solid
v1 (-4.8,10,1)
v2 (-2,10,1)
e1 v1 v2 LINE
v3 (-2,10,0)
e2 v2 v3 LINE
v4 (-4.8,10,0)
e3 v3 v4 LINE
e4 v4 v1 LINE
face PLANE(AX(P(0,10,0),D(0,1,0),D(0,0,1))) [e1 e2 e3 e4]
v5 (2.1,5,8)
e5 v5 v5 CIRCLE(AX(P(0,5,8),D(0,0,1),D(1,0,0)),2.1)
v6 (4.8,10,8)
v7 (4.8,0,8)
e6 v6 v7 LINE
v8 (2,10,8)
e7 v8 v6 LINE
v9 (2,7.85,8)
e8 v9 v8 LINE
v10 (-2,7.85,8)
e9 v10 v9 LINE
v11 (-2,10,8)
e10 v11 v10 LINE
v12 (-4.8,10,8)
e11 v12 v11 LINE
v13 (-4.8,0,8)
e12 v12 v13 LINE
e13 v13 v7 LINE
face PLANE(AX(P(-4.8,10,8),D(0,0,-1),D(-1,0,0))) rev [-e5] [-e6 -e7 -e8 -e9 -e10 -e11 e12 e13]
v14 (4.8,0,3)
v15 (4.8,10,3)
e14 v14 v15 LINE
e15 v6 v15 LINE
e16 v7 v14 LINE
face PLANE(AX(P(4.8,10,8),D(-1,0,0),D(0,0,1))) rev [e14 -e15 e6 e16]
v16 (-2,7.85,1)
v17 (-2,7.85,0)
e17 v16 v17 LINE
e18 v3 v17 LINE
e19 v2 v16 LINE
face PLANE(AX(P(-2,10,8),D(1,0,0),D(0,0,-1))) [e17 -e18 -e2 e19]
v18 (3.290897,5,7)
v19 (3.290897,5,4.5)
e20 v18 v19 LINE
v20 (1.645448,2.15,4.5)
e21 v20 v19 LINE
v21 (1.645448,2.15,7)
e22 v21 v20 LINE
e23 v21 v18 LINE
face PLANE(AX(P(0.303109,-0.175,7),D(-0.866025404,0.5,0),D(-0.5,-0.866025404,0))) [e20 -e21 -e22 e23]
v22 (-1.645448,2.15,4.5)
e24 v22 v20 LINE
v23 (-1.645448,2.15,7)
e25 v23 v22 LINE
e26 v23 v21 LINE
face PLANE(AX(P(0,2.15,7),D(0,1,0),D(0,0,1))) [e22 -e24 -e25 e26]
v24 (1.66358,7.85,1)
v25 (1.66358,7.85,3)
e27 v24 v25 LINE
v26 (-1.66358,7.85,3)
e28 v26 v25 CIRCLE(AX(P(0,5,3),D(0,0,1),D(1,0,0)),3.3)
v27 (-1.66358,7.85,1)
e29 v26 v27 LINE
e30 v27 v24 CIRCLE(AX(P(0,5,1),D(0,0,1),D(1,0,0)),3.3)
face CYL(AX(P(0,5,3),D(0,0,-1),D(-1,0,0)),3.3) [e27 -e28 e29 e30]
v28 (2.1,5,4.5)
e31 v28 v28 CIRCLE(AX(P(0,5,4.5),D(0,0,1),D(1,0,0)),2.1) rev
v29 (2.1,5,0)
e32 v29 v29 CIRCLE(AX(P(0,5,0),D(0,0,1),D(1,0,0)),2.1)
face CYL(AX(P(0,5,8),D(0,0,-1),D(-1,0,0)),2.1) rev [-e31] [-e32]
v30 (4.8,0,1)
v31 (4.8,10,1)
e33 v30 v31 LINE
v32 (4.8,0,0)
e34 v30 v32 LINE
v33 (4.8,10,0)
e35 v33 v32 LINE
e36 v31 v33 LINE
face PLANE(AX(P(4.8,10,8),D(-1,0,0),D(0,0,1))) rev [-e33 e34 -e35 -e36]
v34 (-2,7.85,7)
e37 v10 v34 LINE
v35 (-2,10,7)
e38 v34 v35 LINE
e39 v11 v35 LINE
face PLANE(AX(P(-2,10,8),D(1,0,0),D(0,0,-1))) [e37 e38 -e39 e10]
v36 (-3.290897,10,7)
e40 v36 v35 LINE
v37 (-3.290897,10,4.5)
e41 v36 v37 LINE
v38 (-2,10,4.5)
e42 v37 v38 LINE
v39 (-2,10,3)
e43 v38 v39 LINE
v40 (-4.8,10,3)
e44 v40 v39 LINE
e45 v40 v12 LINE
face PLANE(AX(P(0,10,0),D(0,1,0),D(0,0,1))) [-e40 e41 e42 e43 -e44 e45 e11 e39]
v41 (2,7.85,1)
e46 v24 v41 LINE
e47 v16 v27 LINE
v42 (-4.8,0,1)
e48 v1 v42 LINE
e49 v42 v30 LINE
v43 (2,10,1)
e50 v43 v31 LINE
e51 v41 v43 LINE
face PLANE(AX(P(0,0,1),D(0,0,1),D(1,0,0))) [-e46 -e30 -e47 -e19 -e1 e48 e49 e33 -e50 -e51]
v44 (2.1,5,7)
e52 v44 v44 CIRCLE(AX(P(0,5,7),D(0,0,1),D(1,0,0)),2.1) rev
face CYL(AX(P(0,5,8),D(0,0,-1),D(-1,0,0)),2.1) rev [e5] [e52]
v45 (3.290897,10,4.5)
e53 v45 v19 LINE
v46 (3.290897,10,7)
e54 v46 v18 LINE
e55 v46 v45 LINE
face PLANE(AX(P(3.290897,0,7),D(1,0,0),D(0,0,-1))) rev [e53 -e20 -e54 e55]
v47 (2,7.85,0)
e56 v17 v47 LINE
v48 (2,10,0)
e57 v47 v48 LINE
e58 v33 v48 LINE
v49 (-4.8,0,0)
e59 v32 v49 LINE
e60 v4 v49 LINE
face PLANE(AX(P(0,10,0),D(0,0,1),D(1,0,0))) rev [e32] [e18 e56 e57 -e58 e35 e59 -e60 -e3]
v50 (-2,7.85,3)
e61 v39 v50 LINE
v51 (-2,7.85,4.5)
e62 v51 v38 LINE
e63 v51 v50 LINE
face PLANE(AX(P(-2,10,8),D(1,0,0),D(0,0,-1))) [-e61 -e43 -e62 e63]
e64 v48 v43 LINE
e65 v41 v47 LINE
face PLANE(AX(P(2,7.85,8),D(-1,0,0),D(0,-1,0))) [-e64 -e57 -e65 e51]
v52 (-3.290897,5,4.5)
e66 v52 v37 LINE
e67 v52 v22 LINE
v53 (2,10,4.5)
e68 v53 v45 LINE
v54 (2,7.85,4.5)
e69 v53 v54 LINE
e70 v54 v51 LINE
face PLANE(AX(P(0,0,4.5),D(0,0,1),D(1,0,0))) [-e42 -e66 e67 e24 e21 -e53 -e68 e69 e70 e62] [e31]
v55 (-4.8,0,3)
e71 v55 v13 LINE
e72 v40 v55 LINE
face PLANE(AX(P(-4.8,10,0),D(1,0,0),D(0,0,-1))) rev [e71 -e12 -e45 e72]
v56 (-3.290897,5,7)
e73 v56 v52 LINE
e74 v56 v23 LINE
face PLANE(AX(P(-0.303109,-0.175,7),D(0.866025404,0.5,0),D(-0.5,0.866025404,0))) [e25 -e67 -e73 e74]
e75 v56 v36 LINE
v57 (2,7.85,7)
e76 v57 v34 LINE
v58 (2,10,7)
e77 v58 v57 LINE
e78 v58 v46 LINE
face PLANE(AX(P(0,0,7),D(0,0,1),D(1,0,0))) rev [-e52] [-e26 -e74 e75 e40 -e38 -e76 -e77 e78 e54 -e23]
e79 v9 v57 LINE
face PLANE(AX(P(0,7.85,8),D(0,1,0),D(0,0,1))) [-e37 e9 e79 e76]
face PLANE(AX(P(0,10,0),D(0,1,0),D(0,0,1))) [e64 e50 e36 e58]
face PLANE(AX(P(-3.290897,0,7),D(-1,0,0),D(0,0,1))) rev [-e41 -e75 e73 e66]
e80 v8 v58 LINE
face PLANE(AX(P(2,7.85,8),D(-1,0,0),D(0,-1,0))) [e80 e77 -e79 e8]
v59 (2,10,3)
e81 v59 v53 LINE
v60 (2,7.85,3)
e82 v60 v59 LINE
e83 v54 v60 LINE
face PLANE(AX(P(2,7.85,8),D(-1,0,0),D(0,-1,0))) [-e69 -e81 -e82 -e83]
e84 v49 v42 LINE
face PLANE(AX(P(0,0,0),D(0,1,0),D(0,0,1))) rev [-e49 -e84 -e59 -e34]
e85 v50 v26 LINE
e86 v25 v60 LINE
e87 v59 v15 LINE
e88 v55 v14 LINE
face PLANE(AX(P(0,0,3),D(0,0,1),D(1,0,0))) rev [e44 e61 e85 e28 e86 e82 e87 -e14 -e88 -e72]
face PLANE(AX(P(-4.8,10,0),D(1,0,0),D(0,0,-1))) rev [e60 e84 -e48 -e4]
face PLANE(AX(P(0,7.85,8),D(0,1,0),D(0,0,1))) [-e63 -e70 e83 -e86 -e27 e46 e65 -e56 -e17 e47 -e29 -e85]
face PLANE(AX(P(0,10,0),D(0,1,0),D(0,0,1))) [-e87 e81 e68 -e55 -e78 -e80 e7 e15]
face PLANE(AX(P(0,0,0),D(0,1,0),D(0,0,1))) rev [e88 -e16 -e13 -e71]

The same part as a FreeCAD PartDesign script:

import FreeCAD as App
import Part
import Sketcher
Q = App.Units.Quantity


def add_polygon(sketch, points):
    """Adds a closed chain of lines whose ends are joined by coincident constraints."""
    first, n = sketch.GeometryCount, len(points)
    for a, b in zip(points, points[1:] + points[:1]):
        sketch.addGeometry(Part.LineSegment(App.Vector(*a, 0), App.Vector(*b, 0)), False)
    for i in range(n):
        sketch.addConstraint(Sketcher.Constraint("Coincident", first + i, 2, first + (i + 1) % n, 1))

doc = App.newDocument("Part")
body = doc.addObject("PartDesign::Body", "Body")

# Sketch on XZ plane
sketch1 = doc.addObject("Sketcher::SketchObject", "Sketch")
body.addObject(sketch1)
sketch1.AttachmentSupport = (doc.XZ_Plane, [""])
sketch1.MapMode = "FlatFace"
add_polygon(sketch1, [(5, 0), (-5, 0), (-5, 8), (5, 8)])  # lines 0-3
sketch1.addConstraint([
    Sketcher.Constraint("Horizontal", 0),
    Sketcher.Constraint("Vertical", 1),
    Sketcher.Constraint("Horizontal", 2),
    Sketcher.Constraint("Vertical", 3),
    Sketcher.Constraint("Symmetric", 0, 2, 3, 2, -1, 1),
    Sketcher.Constraint("DistanceY", 1, 1, 1, 2, 8.0),
    Sketcher.Constraint("DistanceX", 0, 2, 0, 1, 9.6),
])
pad1 = doc.addObject("PartDesign::Pad", "Pad")
body.addObject(pad1)
pad1.Profile = sketch1
pad1.Length = 10
pad1.Reversed = True

# Sketch on XY plane
sketch2 = doc.addObject("Sketcher::SketchObject", "Sketch001")
body.addObject(sketch2)
sketch2.AttachmentSupport = (doc.XY_Plane, [""])
sketch2.MapMode = "FlatFace"
sketch2.AttachmentOffset = App.Placement(App.Vector(0, 0, 4.5), App.Rotation())
add_polygon(sketch2, [(3.3, 5), (3.3, 10), (-3.3, 10), (-3.3, 5), (-1.6, 2.1), (1.6, 2.1)])  # lines 0-5
sketch2.addConstraint([
    Sketcher.Constraint("Vertical", 0),
    Sketcher.Constraint("Horizontal", 1),
    Sketcher.Constraint("Vertical", 2),
    Sketcher.Constraint("Horizontal", 4),
    Sketcher.Constraint("Symmetric", 2, 2, 5, 2, -2),
    Sketcher.Constraint("Equal", 3, 5),
    Sketcher.Constraint("DistanceY", 0, 1, 0, 2, 5.0),
    Sketcher.Constraint("Angle", 3, Q("-60 deg")),
    Sketcher.Constraint("DistanceY", -1, 1, 0, 2, 10.0),
    Sketcher.Constraint("DistanceY", -1, 1, 3, 2, 2.15),
    Sketcher.Constraint("DistanceX", 1, 2, 1, 1, 6.581793),
])
pocket1 = doc.addObject("PartDesign::Pocket", "Pocket")
body.addObject(pocket1)
pocket1.Profile = sketch2
pocket1.Length = 2.5
pocket1.Reversed = True

# Sketch on XY plane
sketch3 = doc.addObject("Sketcher::SketchObject", "Sketch002")
body.addObject(sketch3)
sketch3.AttachmentSupport = (doc.XY_Plane, [""])
sketch3.MapMode = "FlatFace"
sketch3.addGeometry(Part.Circle(App.Vector(0, 5, 0), App.Vector(0, 0, 1), 2.1), False)  # 0
add_polygon(sketch3, [(2, 7.8), (2, 10), (-2, 10), (-2, 7.8)])  # lines 1-4
sketch3.addConstraint([
    Sketcher.Constraint("Vertical", 1),
    Sketcher.Constraint("Horizontal", 2),
    Sketcher.Constraint("Vertical", 3),
    Sketcher.Constraint("Horizontal", 4),
    Sketcher.Constraint("PointOnObject", 0, 3, -2),
    Sketcher.Constraint("Diameter", 0, 4.2),
    Sketcher.Constraint("DistanceX", 2, 2, 2, 1, 4.0),
    Sketcher.Constraint("DistanceY", -1, 1, 0, 3, 5.0),
    Sketcher.Constraint("DistanceX", -1, 1, 1, 2, 2.0),
    Sketcher.Constraint("DistanceY", -1, 1, 1, 2, 10.0),
    Sketcher.Constraint("DistanceY", 1, 1, 1, 2, 2.15),
])
pocket2 = doc.addObject("PartDesign::Pocket", "Pocket001")
body.addObject(pocket2)
pocket2.Profile = sketch3
pocket2.Type = "ThroughAll"
pocket2.Reversed = True

# Sketch on XY plane
sketch4 = doc.addObject("Sketcher::SketchObject", "Sketch003")
body.addObject(sketch4)
sketch4.AttachmentSupport = (doc.XY_Plane, [""])
sketch4.MapMode = "FlatFace"
sketch4.AttachmentOffset = App.Placement(App.Vector(0, 0, 1), App.Rotation())
add_polygon(sketch4, [(-5.8, 11), (-5.8, -1), (5.8, -1), (5.8, 11)])  # lines 0-3
sketch4.addGeometry(Part.Circle(App.Vector(0, 5, 0), App.Vector(0, 0, 1), 3.3), False)  # 4
sketch4.addConstraint([
    Sketcher.Constraint("Vertical", 0),
    Sketcher.Constraint("Horizontal", 1),
    Sketcher.Constraint("Vertical", 2),
    Sketcher.Constraint("Horizontal", 3),
    Sketcher.Constraint("PointOnObject", 4, 3, -2),
    Sketcher.Constraint("Diameter", 4, 6.6),
    Sketcher.Constraint("DistanceY", 0, 2, 0, 1, 12.0),
    Sketcher.Constraint("DistanceX", 1, 1, 1, 2, 11.6),
    Sketcher.Constraint("DistanceY", -1, 1, 4, 3, 5.0),
    Sketcher.Constraint("DistanceY", 0, 2, -1, 1, 1.0),
    Sketcher.Constraint("DistanceX", 0, 2, -1, 1, 5.8),
])
pocket3 = doc.addObject("PartDesign::Pocket", "Pocket002")
body.addObject(pocket3)
pocket3.Profile = sketch4
pocket3.Length = 2
pocket3.Reversed = True

doc.recompute()
